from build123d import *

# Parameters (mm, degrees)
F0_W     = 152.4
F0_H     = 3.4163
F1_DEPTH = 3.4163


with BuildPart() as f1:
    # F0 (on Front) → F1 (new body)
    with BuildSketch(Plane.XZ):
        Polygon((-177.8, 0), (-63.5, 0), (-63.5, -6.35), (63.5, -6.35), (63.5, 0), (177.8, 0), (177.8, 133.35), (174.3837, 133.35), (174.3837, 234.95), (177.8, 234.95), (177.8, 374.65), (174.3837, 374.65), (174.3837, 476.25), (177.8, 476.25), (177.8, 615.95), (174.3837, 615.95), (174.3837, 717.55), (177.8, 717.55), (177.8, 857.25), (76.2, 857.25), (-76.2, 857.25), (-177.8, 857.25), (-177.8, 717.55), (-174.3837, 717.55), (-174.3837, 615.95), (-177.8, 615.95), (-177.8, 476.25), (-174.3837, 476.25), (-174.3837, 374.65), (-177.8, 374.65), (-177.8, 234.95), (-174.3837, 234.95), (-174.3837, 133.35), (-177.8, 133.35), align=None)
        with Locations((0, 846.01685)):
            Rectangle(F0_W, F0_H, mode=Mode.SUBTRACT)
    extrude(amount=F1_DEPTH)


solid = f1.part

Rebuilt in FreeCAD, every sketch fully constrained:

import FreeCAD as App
import Part
import Sketcher

V = App.Vector
Q = App.Units.Quantity


def add_polygon(sketch, points):
    """Adds a closed chain of lines whose ends are joined by coincident constraints."""
    first, n = sketch.GeometryCount, len(points)
    for a, b in zip(points, points[1:] + points[:1]):
        sketch.addGeometry(Part.LineSegment(App.Vector(*a, 0), App.Vector(*b, 0)), False)
    for i in range(n):
        sketch.addConstraint(Sketcher.Constraint("Coincident", first + i, 2, first + (i + 1) % n, 1))

doc = App.newDocument("Part")
body = doc.addObject("PartDesign::Body", "Body")

# Sketch on XZ plane
sketch1 = body.newObject("Sketcher::SketchObject", "Sketch")
sketch1.AttachmentSupport = (doc.getObject("XZ_Plane"), [""])
sketch1.MapMode = "FlatFace"
add_polygon(sketch1, [(-177.8, 0), (-63.5, 0), (-63.5, -6.3), (63.5, -6.3), (63.5, 0), (177.8, 0), (177.8, 133.3), (174.4, 133.3), (174.4, 234.9), (177.8, 234.9), (177.8, 374.6), (174.4, 374.6), (174.4, 476.2), (177.8, 476.2), (177.8, 616), (174.4, 616), (174.4, 717.5), (177.8, 717.5), (177.8, 857.2), (-177.8, 857.2), (-177.8, 717.5), (-174.4, 717.5), (-174.4, 616), (-177.8, 616), (-177.8, 476.2), (-174.4, 476.2), (-174.4, 374.6), (-177.8, 374.6), (-177.8, 234.9), (-174.4, 234.9), (-174.4, 133.3), (-177.8, 133.3)])  # lines 0-31
add_polygon(sketch1, [(76.2, 844.3), (-76.2, 844.3), (-76.2, 847.7), (76.2, 847.7)])  # lines 32-35
sketch1.addConstraint(Sketcher.Constraint("Horizontal", 0))
sketch1.addConstraint(Sketcher.Constraint("Vertical", 1))
sketch1.addConstraint(Sketcher.Constraint("Horizontal", 2))
sketch1.addConstraint(Sketcher.Constraint("Vertical", 3))
sketch1.addConstraint(Sketcher.Constraint("Horizontal", 4))
sketch1.addConstraint(Sketcher.Constraint("Vertical", 5))
sketch1.addConstraint(Sketcher.Constraint("Horizontal", 6))
sketch1.addConstraint(Sketcher.Constraint("Vertical", 7))
sketch1.addConstraint(Sketcher.Constraint("Horizontal", 8))
sketch1.addConstraint(Sketcher.Constraint("Vertical", 9))
sketch1.addConstraint(Sketcher.Constraint("Horizontal", 10))
sketch1.addConstraint(Sketcher.Constraint("Vertical", 11))
sketch1.addConstraint(Sketcher.Constraint("Horizontal", 12))
sketch1.addConstraint(Sketcher.Constraint("Vertical", 13))
sketch1.addConstraint(Sketcher.Constraint("Horizontal", 14))
sketch1.addConstraint(Sketcher.Constraint("Vertical", 15))
sketch1.addConstraint(Sketcher.Constraint("Horizontal", 16))
sketch1.addConstraint(Sketcher.Constraint("Vertical", 17))
sketch1.addConstraint(Sketcher.Constraint("Horizontal", 18))
sketch1.addConstraint(Sketcher.Constraint("Vertical", 19))
sketch1.addConstraint(Sketcher.Constraint("Horizontal", 20))
sketch1.addConstraint(Sketcher.Constraint("Vertical", 21))
sketch1.addConstraint(Sketcher.Constraint("Horizontal", 22))
sketch1.addConstraint(Sketcher.Constraint("Vertical", 23))
sketch1.addConstraint(Sketcher.Constraint("Horizontal", 24))
sketch1.addConstraint(Sketcher.Constraint("Vertical", 25))
sketch1.addConstraint(Sketcher.Constraint("Horizontal", 26))
sketch1.addConstraint(Sketcher.Constraint("Vertical", 27))
sketch1.addConstraint(Sketcher.Constraint("Horizontal", 28))
sketch1.addConstraint(Sketcher.Constraint("Vertical", 29))
sketch1.addConstraint(Sketcher.Constraint("Horizontal", 30))
sketch1.addConstraint(Sketcher.Constraint("Vertical", 31))
sketch1.addConstraint(Sketcher.Constraint("Horizontal", 32))
sketch1.addConstraint(Sketcher.Constraint("Vertical", 33))
sketch1.addConstraint(Sketcher.Constraint("Horizontal", 34))
sketch1.addConstraint(Sketcher.Constraint("Vertical", 35))
sketch1.addConstraint(Sketcher.Constraint("Symmetric", 0, 2, 3, 2, -1, 1))
sketch1.addConstraint(Sketcher.Constraint("Symmetric", 16, 2, 19, 2, -2))
sketch1.addConstraint(Sketcher.Constraint("Symmetric", 14, 2, 21, 2, -2))
sketch1.addConstraint(Sketcher.Constraint("Symmetric", 12, 2, 23, 2, -2))
sketch1.addConstraint(Sketcher.Constraint("Symmetric", 10, 2, 25, 2, -2))
sketch1.addConstraint(Sketcher.Constraint("Symmetric", 8, 2, 27, 2, -2))
sketch1.addConstraint(Sketcher.Constraint("Symmetric", 6, 2, 29, 2, -2))
sketch1.addConstraint(Sketcher.Constraint("Symmetric", 4, 2, 31, 2, -2))
sketch1.addConstraint(Sketcher.Constraint("Vertical", 5, 2, 8, 2))
sketch1.addConstraint(Sketcher.Constraint("Vertical", 7, 2, 10, 2))
sketch1.addConstraint(Sketcher.Constraint("Vertical", 9, 2, 12, 2))
sketch1.addConstraint(Sketcher.Constraint("Vertical", 11, 2, 14, 2))
sketch1.addConstraint(Sketcher.Constraint("Vertical", 13, 2, 16, 2))
sketch1.addConstraint(Sketcher.Constraint("Equal", 7, 11))
sketch1.addConstraint(Sketcher.Constraint("Equal", 9, 13))
sketch1.addConstraint(Sketcher.Constraint("Equal", 11, 15))
sketch1.addConstraint(Sketcher.Constraint("Equal", 13, 17))
sketch1.addConstraint(Sketcher.Constraint("Equal", 30, 33))
sketch1.addConstraint(Sketcher.Constraint("DistanceX", 2, 1, 2, 2, Q("5 in")))
sketch1.addConstraint(Sketcher.Constraint("DistanceX", 18, 2, 18, 1, Q("14 in")))
sketch1.addConstraint(Sketcher.Constraint("DistanceX", 32, 2, 32, 1, Q("6 in")))
sketch1.addConstraint(Sketcher.Constraint("DistanceY", 7, 1, 7, 2, Q("4 in")))
sketch1.addConstraint(Sketcher.Constraint("DistanceY", 9, 1, 9, 2, Q("5.5 in")))
sketch1.addConstraint(Sketcher.Constraint("DistanceX", 32, 2, -1, 1, Q("3 in")))
sketch1.addConstraint(Sketcher.Constraint("DistanceY", 1, 2, 1, 1, Q("0.25 in")))
sketch1.addConstraint(Sketcher.Constraint("DistanceY", 5, 1, 5, 2, Q("5.25 in")))
sketch1.addConstraint(Sketcher.Constraint("DistanceX", 6, 2, 6, 1, Q("0.1345 in")))
sketch1.addConstraint(Sketcher.Constraint("DistanceY", -1, 1, 33, 2, Q("33.375 in")))
pad1 = body.newObject("PartDesign::Pad", "Pad")
pad1.Profile = sketch1
pad1.Length = Q("0.1345 in")

doc.recompute()
